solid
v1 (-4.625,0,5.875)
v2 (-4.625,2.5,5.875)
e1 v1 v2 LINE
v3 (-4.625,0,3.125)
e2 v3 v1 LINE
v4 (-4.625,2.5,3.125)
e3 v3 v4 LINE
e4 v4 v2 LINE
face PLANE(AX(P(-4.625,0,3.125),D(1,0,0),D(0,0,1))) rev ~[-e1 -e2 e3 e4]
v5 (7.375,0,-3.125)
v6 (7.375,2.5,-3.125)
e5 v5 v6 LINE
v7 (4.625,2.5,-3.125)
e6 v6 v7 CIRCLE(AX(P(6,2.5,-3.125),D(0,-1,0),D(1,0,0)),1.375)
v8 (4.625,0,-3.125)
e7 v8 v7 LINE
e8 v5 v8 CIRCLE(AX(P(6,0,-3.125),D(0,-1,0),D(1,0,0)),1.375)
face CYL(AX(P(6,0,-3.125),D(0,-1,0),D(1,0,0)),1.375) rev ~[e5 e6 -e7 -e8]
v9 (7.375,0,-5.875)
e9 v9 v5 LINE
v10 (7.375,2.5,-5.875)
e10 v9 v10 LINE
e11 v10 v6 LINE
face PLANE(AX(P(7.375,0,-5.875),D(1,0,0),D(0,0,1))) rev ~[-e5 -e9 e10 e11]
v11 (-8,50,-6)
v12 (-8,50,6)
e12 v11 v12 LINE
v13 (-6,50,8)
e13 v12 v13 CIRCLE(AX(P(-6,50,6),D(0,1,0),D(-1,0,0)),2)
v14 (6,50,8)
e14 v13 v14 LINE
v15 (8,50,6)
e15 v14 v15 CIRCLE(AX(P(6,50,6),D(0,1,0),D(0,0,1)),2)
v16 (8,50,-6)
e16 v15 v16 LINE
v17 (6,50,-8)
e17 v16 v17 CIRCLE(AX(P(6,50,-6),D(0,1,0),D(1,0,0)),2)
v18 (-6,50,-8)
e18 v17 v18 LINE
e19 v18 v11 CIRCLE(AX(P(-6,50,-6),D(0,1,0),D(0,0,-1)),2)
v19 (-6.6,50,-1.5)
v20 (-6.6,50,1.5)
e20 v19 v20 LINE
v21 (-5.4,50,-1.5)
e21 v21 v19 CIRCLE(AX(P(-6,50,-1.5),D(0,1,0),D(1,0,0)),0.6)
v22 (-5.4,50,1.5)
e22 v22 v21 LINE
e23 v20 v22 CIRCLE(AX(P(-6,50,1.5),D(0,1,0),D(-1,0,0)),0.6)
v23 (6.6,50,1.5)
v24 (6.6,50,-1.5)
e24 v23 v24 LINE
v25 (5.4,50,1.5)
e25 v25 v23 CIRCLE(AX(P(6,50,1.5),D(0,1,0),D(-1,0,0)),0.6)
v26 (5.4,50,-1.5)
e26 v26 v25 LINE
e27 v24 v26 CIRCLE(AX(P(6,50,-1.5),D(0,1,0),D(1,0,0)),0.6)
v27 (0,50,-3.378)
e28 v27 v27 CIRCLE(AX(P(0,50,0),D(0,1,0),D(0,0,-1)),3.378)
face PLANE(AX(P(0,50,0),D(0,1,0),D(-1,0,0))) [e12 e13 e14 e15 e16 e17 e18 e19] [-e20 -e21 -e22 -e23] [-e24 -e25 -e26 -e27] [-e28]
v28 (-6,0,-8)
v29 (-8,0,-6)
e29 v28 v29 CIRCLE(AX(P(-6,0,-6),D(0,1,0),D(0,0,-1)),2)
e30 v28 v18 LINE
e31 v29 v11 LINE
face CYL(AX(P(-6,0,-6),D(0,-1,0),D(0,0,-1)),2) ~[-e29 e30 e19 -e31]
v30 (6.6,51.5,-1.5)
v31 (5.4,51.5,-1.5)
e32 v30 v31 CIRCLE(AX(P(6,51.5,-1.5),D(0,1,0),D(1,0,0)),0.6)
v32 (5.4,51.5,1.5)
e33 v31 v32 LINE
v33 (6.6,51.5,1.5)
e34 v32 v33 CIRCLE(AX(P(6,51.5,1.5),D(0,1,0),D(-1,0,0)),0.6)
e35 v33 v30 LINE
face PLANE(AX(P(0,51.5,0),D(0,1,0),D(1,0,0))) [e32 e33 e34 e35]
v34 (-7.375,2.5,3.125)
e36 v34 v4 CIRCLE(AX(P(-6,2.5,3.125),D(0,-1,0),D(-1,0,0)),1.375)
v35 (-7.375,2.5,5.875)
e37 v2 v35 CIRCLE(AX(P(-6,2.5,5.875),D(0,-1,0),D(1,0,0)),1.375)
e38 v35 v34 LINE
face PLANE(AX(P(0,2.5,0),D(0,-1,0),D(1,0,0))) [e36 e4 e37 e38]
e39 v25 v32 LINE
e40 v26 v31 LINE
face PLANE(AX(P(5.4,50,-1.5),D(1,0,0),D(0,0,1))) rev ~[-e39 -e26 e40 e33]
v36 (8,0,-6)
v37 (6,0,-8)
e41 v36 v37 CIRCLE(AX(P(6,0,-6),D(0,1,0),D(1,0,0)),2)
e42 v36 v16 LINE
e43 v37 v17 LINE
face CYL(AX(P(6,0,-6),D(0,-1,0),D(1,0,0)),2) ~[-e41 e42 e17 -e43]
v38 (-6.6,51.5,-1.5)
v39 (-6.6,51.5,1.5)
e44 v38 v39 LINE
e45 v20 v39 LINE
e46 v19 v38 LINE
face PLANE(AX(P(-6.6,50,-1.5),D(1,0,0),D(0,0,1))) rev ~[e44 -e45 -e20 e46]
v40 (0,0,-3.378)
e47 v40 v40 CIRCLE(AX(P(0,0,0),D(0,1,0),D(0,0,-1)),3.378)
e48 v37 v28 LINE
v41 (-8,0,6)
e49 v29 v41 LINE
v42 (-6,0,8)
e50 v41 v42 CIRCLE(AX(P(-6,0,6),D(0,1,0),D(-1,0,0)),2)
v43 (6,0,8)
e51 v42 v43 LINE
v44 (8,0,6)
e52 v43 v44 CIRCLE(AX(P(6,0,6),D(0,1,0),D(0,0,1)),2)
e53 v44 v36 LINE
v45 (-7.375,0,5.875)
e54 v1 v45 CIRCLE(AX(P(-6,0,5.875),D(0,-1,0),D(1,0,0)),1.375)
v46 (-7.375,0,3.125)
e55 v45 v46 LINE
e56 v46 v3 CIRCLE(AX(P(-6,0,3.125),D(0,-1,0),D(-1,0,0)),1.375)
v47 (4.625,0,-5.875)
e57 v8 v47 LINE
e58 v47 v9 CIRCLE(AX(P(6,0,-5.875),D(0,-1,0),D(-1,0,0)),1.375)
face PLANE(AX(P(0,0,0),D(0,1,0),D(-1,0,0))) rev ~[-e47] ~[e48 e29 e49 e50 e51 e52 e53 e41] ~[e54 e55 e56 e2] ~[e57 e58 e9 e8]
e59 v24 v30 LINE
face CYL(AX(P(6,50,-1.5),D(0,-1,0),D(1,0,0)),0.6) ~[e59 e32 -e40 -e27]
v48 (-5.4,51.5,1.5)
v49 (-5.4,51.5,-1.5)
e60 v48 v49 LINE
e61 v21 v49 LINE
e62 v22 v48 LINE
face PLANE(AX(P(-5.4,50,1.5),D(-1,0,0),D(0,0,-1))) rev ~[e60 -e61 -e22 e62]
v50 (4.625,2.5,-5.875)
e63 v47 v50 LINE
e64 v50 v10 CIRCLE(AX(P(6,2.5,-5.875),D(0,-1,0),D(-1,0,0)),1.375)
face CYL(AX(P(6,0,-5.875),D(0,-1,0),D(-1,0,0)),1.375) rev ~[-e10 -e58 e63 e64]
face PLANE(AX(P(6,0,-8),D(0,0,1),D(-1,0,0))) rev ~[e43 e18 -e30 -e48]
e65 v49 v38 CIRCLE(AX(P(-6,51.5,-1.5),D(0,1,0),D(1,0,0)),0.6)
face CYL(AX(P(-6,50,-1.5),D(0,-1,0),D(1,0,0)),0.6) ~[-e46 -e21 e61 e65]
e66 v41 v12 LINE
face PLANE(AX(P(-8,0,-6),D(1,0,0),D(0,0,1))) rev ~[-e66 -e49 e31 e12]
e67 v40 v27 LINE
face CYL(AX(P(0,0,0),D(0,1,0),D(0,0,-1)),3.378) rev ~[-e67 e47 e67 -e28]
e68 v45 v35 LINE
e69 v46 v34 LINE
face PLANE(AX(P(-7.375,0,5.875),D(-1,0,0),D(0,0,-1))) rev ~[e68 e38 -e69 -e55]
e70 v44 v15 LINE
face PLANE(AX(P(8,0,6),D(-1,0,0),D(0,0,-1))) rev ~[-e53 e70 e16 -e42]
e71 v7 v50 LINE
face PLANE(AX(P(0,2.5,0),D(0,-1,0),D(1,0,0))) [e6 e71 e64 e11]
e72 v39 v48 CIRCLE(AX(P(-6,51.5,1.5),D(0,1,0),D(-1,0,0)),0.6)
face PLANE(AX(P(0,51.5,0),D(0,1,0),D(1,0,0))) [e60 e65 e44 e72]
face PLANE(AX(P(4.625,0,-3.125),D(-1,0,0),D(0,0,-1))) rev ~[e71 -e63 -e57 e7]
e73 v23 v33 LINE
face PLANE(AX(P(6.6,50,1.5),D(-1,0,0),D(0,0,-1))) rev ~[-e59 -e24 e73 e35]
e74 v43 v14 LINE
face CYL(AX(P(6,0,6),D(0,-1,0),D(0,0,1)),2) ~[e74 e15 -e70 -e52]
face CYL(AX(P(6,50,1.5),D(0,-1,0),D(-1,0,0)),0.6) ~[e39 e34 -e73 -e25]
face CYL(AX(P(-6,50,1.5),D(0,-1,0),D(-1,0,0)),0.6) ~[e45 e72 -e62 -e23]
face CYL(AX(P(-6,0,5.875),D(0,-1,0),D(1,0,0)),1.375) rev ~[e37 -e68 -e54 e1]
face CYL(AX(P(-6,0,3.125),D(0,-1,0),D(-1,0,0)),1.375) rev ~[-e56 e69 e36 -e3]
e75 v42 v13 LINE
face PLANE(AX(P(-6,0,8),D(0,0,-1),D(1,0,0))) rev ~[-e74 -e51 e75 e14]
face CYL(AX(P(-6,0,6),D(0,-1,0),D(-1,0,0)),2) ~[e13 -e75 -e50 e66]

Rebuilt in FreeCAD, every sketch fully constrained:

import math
import FreeCAD as App
import Part
import Sketcher
from FreeCAD import Vector

doc = App.newDocument("Part")
body = doc.addObject("PartDesign::Body", "Body")

# Sketch on XZ plane
sketch1 = doc.addObject("Sketcher::SketchObject", "Sketch")
body.addObject(sketch1)
sketch1.AttachmentSupport = (doc.XZ_Plane, [""])
sketch1.MapMode = "FlatFace"
sketch1.addGeometry([
    Part.ArcOfCircle(Part.Circle(Vector(-6, 6, 0), Vector(0, 0, 1), 2), math.radians(90), math.radians(180)),  # 0
    Part.LineSegment(Vector(-6, 8, 0), Vector(6, 8, 0)),  # 1
    Part.ArcOfCircle(Part.Circle(Vector(6, 6, 0), Vector(0, 0, 1), 2), math.radians(0), math.radians(90)),  # 2
    Part.LineSegment(Vector(8, 6, 0), Vector(8, -6, 0)),  # 3
    Part.ArcOfCircle(Part.Circle(Vector(6, -6, 0), Vector(0, 0, 1), 2), math.radians(-90), math.radians(0)),  # 4
    Part.LineSegment(Vector(6, -8, 0), Vector(-6, -8, 0)),  # 5
    Part.ArcOfCircle(Part.Circle(Vector(-6, -6, 0), Vector(0, 0, 1), 2), math.radians(180), math.radians(270)),  # 6
    Part.LineSegment(Vector(-8, -6, 0), Vector(-8, 6, 0)),  # 7
], False)
sketch1.addConstraint([
    Sketcher.Constraint("Tangent", 0, 1, 1, 1),
    Sketcher.Constraint("Tangent", 1, 2, 2, 2),
    Sketcher.Constraint("Tangent", 2, 1, 3, 1),
    Sketcher.Constraint("Tangent", 3, 2, 4, 2),
    Sketcher.Constraint("Tangent", 4, 1, 5, 1),
    Sketcher.Constraint("Tangent", 5, 2, 6, 2),
    Sketcher.Constraint("Tangent", 6, 1, 7, 1),
    Sketcher.Constraint("Tangent", 7, 2, 0, 2),
    Sketcher.Constraint("Horizontal", 1),
    Sketcher.Constraint("Vertical", 3),
    Sketcher.Constraint("Horizontal", 5),
    Sketcher.Constraint("Vertical", 7),
    Sketcher.Constraint("Equal", 0, 2),
    Sketcher.Constraint("Equal", 2, 4),
    Sketcher.Constraint("Equal", 4, 6),
    Sketcher.Constraint("Symmetric", 0, 3, 4, 3, -1, 1),
    Sketcher.Constraint("Equal", 5, 3),
    Sketcher.Constraint("Radius", 0, 2.0),
    Sketcher.Constraint("DistanceY", -1, 1, 0, 1, 8.0),
])
pad1 = doc.addObject("PartDesign::Pad", "Pad")
body.addObject(pad1)
pad1.Profile = sketch1
pad1.Length = 50
pad1.Reversed = True

# Sketch on XZ plane
sketch2 = doc.addObject("Sketcher::SketchObject", "Sketch001")
body.addObject(sketch2)
sketch2.AttachmentSupport = (doc.XZ_Plane, [""])
sketch2.MapMode = "FlatFace"
sketch2.addGeometry([
    Part.ArcOfCircle(Part.Circle(Vector(-6, 5.9, 0), Vector(0, 0, 1), 1.4), math.radians(0), math.radians(180)),  # 0
    Part.LineSegment(Vector(-7.4, 5.9, 0), Vector(-7.4, 3.1, 0)),  # 1
    Part.ArcOfCircle(Part.Circle(Vector(-6, 3.1, 0), Vector(0, 0, 1), 1.4), math.radians(180), math.radians(360)),  # 2
    Part.LineSegment(Vector(-4.6, 3.1, 0), Vector(-4.6, 5.9, 0)),  # 3
    Part.ArcOfCircle(Part.Circle(Vector(6, -3.1, 0), Vector(0, 0, 1), 1.4), math.radians(0), math.radians(180)),  # 4
    Part.LineSegment(Vector(4.6, -3.1, 0), Vector(4.6, -5.9, 0)),  # 5
    Part.ArcOfCircle(Part.Circle(Vector(6, -5.9, 0), Vector(0, 0, 1), 1.4), math.radians(180), math.radians(360)),  # 6
    Part.LineSegment(Vector(7.4, -5.9, 0), Vector(7.4, -3.1, 0)),  # 7
], False)
sketch2.addConstraint([
    Sketcher.Constraint("Tangent", 0, 2, 1, 1),
    Sketcher.Constraint("Tangent", 1, 2, 2, 1),
    Sketcher.Constraint("Tangent", 2, 2, 3, 1),
    Sketcher.Constraint("Tangent", 3, 2, 0, 1),
    Sketcher.Constraint("Tangent", 4, 2, 5, 1),
    Sketcher.Constraint("Tangent", 5, 2, 6, 1),
    Sketcher.Constraint("Tangent", 6, 2, 7, 1),
    Sketcher.Constraint("Tangent", 7, 2, 4, 1),
    Sketcher.Constraint("Vertical", 1),
    Sketcher.Constraint("Vertical", 3),
    Sketcher.Constraint("Vertical", 5),
    Sketcher.Constraint("Vertical", 7),
    Sketcher.Constraint("Equal", 2, 4),
    Sketcher.Constraint("Symmetric", 2, 3, 4, 3, -1, 1),
    Sketcher.Constraint("Equal", 3, 5),
    Sketcher.Constraint("DistanceX", 0, 3, -1, 1, 6.0),
    Sketcher.Constraint("Radius", 0, 1.375),
    Sketcher.Constraint("DistanceY", 4, 3, 0, 3, 9.0),
    Sketcher.Constraint("DistanceY", 1, 2, 1, 1, 2.75),
])
pocket1 = doc.addObject("PartDesign::Pocket", "Pocket")
body.addObject(pocket1)
pocket1.Profile = sketch2
pocket1.Length = 2.5

# Sketch on XZ plane
sketch3 = doc.addObject("Sketcher::SketchObject", "Sketch002")
body.addObject(sketch3)
sketch3.AttachmentSupport = (doc.XZ_Plane, [""])
sketch3.MapMode = "FlatFace"
sketch3.addGeometry(Part.Circle(Vector(0, 0, 0), Vector(0, 0, 1), 3.4), False)
sketch3.addConstraint([
    Sketcher.Constraint("Coincident", 0, 3, -1, 1),
    Sketcher.Constraint("Diameter", 0, 6.756),
])
doc.recompute()
hole = doc.addObject("PartDesign::Hole", "Hole")
body.addObject(hole)
hole.Profile = sketch3
hole.ThreadType = "None"
hole.Diameter = 6.756
hole.DepthType = "ThroughAll"

# Sketch on XZ plane
sketch4 = doc.addObject("Sketcher::SketchObject", "Sketch003")
body.addObject(sketch4)
sketch4.AttachmentSupport = (doc.XZ_Plane, [""])
sketch4.MapMode = "FlatFace"
sketch4.AttachmentOffset = App.Placement(Vector(0, 0, -50), App.Rotation())
sketch4.addGeometry([
    Part.ArcOfCircle(Part.Circle(Vector(-6, -1.5, 0), Vector(0, 0, 1), 0.6), math.radians(180), math.radians(360)),  # 0
    Part.LineSegment(Vector(-6.6, -1.5, 0), Vector(-6.6, 1.5, 0)),  # 1
    Part.ArcOfCircle(Part.Circle(Vector(-6, 1.5, 0), Vector(0, 0, 1), 0.6), math.radians(0), math.radians(180)),  # 2
    Part.LineSegment(Vector(-5.4, 1.5, 0), Vector(-5.4, -1.5, 0)),  # 3
    Part.ArcOfCircle(Part.Circle(Vector(6, -1.5, 0), Vector(0, 0, 1), 0.6), math.radians(180), math.radians(360)),  # 4
    Part.LineSegment(Vector(5.4, -1.5, 0), Vector(5.4, 1.5, 0)),  # 5
    Part.ArcOfCircle(Part.Circle(Vector(6, 1.5, 0), Vector(0, 0, 1), 0.6), math.radians(0), math.radians(180)),  # 6
    Part.LineSegment(Vector(6.6, 1.5, 0), Vector(6.6, -1.5, 0)),  # 7
], False)
sketch4.addConstraint([
    Sketcher.Constraint("Tangent", 0, 1, 1, 1),
    Sketcher.Constraint("Tangent", 1, 2, 2, 2),
    Sketcher.Constraint("Tangent", 2, 1, 3, 1),
    Sketcher.Constraint("Tangent", 3, 2, 0, 2),
    Sketcher.Constraint("Tangent", 4, 1, 5, 1),
    Sketcher.Constraint("Tangent", 5, 2, 6, 2),
    Sketcher.Constraint("Tangent", 6, 1, 7, 1),
    Sketcher.Constraint("Tangent", 7, 2, 4, 2),
    Sketcher.Constraint("Vertical", 1),
    Sketcher.Constraint("Vertical", 3),
    Sketcher.Constraint("Vertical", 5),
    Sketcher.Constraint("Vertical", 7),
    Sketcher.Constraint("Equal", 2, 4),
    Sketcher.Constraint("Symmetric", 2, 3, 4, 3, -1, 1),
    Sketcher.Constraint("Horizontal", 0, 3, 4, 3),
    Sketcher.Constraint("Horizontal", 2, 3, 6, 3),
    Sketcher.Constraint("Radius", 0, 0.6),
    Sketcher.Constraint("DistanceY", 1, 1, 1, 2, 3.0),
    Sketcher.Constraint("DistanceX", 0, 3, -1, 1, 6.0),
])
pad2 = doc.addObject("PartDesign::Pad", "Pad001")
body.addObject(pad2)
pad2.Profile = sketch4
pad2.Length = 1.5
pad2.Reversed = True

doc.recompute()
